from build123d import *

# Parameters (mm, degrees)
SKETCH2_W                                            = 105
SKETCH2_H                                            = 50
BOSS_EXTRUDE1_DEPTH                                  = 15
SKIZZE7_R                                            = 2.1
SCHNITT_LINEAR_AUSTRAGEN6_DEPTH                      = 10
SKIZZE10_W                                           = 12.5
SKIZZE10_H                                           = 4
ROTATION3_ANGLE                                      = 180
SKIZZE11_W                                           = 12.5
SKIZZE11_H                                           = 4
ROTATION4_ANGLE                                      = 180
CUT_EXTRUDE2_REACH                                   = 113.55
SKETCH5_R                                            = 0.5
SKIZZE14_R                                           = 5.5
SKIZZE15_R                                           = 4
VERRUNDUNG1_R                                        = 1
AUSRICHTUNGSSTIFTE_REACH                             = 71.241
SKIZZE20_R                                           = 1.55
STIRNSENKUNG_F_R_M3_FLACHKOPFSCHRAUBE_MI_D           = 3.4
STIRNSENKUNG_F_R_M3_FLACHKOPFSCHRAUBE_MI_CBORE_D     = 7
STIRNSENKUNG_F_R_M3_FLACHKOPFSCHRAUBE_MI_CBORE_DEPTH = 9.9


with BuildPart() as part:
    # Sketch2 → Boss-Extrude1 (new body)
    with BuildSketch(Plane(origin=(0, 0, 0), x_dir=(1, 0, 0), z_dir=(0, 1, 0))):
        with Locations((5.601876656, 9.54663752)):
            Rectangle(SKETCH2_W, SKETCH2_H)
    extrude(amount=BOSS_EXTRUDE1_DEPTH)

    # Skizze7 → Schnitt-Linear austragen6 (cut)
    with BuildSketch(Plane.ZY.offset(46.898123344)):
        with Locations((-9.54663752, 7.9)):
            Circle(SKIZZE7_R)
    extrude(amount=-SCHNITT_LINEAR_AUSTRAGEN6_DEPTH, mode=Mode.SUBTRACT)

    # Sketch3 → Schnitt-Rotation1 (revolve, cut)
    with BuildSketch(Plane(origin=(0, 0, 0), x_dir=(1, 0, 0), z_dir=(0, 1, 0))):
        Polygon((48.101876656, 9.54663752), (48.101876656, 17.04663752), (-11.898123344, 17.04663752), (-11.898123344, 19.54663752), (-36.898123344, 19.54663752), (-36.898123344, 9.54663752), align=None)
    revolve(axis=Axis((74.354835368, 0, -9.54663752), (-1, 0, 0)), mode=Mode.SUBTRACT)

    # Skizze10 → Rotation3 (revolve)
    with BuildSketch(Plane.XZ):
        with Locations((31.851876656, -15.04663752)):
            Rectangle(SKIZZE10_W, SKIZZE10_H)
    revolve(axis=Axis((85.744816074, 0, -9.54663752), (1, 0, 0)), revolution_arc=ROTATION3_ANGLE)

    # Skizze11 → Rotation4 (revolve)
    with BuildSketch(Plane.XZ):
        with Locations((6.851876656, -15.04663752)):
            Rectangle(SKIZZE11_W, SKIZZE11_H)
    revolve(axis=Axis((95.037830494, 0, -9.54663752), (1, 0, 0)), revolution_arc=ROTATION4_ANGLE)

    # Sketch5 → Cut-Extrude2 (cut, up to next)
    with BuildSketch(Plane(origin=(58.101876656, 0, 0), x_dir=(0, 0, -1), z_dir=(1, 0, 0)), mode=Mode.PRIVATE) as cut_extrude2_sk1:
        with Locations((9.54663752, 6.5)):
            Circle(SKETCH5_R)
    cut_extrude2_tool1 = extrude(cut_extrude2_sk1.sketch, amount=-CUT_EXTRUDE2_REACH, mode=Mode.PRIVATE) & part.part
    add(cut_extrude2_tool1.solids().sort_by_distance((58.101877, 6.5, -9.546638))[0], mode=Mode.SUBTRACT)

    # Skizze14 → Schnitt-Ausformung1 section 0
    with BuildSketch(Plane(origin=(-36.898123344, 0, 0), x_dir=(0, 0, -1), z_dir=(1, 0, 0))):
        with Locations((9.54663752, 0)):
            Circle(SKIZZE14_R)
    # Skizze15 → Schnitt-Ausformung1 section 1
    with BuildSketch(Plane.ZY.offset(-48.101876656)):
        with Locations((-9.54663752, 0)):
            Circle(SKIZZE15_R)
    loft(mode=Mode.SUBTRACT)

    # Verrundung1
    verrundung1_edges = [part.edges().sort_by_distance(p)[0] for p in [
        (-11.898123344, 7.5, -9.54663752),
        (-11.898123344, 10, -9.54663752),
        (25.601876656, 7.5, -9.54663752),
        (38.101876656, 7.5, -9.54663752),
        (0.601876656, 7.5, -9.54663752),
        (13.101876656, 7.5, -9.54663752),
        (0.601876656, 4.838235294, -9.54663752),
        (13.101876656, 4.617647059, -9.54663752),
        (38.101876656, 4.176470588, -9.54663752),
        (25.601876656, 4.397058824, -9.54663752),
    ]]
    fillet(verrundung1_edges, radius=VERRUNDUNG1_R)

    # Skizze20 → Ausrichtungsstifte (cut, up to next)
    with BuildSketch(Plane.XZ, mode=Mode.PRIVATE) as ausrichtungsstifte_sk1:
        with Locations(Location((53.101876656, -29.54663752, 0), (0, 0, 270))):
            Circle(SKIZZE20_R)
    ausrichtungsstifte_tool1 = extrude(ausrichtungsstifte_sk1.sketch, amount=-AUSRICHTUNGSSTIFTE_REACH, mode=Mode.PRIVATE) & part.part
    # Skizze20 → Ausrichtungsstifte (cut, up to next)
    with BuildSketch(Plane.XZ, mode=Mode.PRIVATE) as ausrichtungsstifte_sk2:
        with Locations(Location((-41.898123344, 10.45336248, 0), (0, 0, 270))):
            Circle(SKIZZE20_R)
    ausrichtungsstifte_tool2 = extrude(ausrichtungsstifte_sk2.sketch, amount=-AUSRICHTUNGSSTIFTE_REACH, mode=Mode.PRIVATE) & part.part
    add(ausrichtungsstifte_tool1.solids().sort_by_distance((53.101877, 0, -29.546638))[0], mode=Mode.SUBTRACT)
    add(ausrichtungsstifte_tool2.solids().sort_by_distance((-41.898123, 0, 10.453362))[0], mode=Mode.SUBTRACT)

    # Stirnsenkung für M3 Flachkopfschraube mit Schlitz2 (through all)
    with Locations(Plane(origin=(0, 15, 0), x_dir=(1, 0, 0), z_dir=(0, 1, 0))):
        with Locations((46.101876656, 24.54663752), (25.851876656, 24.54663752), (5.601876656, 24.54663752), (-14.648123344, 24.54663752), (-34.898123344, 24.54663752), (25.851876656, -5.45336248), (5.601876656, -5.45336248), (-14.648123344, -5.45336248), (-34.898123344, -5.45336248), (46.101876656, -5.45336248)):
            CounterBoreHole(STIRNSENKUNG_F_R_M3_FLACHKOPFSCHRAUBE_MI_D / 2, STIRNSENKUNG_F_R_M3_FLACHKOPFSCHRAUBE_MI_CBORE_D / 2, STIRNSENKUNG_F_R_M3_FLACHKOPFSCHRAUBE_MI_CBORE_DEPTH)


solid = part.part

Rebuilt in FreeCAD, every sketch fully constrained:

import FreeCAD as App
import Part
import Sketcher
Q = App.Units.Quantity


def edges_at(feature, points):
    """Names of the edges that pass closest to the given points."""
    edges = feature.Shape.Edges
    near = lambda p: min(range(len(edges)), key=lambda i: edges[i].distToShape(Part.Vertex(*p))[0])
    return sorted({f"Edge{near(p) + 1}" for p in points})

doc = App.newDocument("Part")
body = doc.addObject("PartDesign::Body", "Body")

sketch1 = doc.addObject("Sketcher::SketchObject", "Sketch")
body.addObject(sketch1)
sketch1.AttachmentSupport = (doc.XZ_Plane, [""])
sketch1.MapMode = "FlatFace"
sketch1.addGeometry([
    Part.LineSegment(App.Vector(-47, -35, 0), App.Vector(-47, 15, 0)),
    Part.LineSegment(App.Vector(-47, 15, 0), App.Vector(58, 15, 0)),
    Part.LineSegment(App.Vector(58, 15, 0), App.Vector(58, -35, 0)),
    Part.LineSegment(App.Vector(58, -35, 0), App.Vector(-47, -35, 0)),
], False)
sketch1.addConstraint([
    Sketcher.Constraint("Coincident", 0, 2, 1, 1),
    Sketcher.Constraint("Coincident", 1, 2, 2, 1),
    Sketcher.Constraint("Coincident", 2, 2, 3, 1),
    Sketcher.Constraint("Coincident", 3, 2, 0, 1),
    Sketcher.Constraint("Vertical", 0),
    Sketcher.Constraint("Horizontal", 1),
    Sketcher.Constraint("Vertical", 2),
    Sketcher.Constraint("Horizontal", 3),
    Sketcher.Constraint("DistanceX", 1, 1, 1, 2, Q("105 mm")),
    Sketcher.Constraint("DistanceY", 0, 1, 0, 2, Q("50 mm")),
    Sketcher.Constraint("DistanceX", 0, 2, -1, 1, Q("46.898123 mm")),
    Sketcher.Constraint("DistanceY", -1, 1, 0, 2, Q("15.453362 mm")),
])
pad1 = doc.addObject("PartDesign::Pad", "Pad")
body.addObject(pad1)
pad1.Profile = sketch1
pad1.Length = 15
pad1.Reversed = True

sketch2 = doc.addObject("Sketcher::SketchObject", "Sketch001")
body.addObject(sketch2)
sketch2.AttachmentSupport = (doc.YZ_Plane, [""])
sketch2.MapMode = "FlatFace"
sketch2.AttachmentOffset = App.Placement(App.Vector(0, 0, -46.898123), App.Rotation())
sketch2.addGeometry(Part.Circle(App.Vector(7.9, -9.5, 0), App.Vector(0, 0, 1), 2.1), False)
sketch2.addConstraint([
    Sketcher.Constraint("Diameter", 0, Q("4.2 mm")),
    Sketcher.Constraint("DistanceX", -1, 1, 0, 3, Q("7.9 mm")),
    Sketcher.Constraint("DistanceY", 0, 3, -1, 1, Q("9.546638 mm")),
])
pocket1 = doc.addObject("PartDesign::Pocket", "Pocket")
body.addObject(pocket1)
pocket1.Profile = sketch2
pocket1.Length = 10
pocket1.Reversed = True

sketch3 = doc.addObject("Sketcher::SketchObject", "Sketch002")
body.addObject(sketch3)
sketch3.AttachmentSupport = (doc.XZ_Plane, [""])
sketch3.MapMode = "FlatFace"
sketch3.addGeometry([
    Part.LineSegment(App.Vector(48.1, -9.5, 0), App.Vector(48.1, -17, 0)),
    Part.LineSegment(App.Vector(48.1, -17, 0), App.Vector(-11.9, -17, 0)),
    Part.LineSegment(App.Vector(-11.9, -17, 0), App.Vector(-11.9, -19.5, 0)),
    Part.LineSegment(App.Vector(-11.9, -19.5, 0), App.Vector(-36.9, -19.5, 0)),
    Part.LineSegment(App.Vector(-36.9, -19.5, 0), App.Vector(-36.9, -9.5, 0)),
    Part.LineSegment(App.Vector(-36.9, -9.5, 0), App.Vector(48.1, -9.5, 0)),
], False)
sketch3.addGeometry(Part.LineSegment(App.Vector(48.1, -9.5, 0), App.Vector(-36.9, -9.5, 0)), True)
sketch3.addConstraint([
    Sketcher.Constraint("Coincident", 0, 2, 1, 1),
    Sketcher.Constraint("Coincident", 1, 2, 2, 1),
    Sketcher.Constraint("Coincident", 2, 2, 3, 1),
    Sketcher.Constraint("Coincident", 3, 2, 4, 1),
    Sketcher.Constraint("Coincident", 4, 2, 5, 1),
    Sketcher.Constraint("Coincident", 5, 2, 0, 1),
    Sketcher.Constraint("Vertical", 0),
    Sketcher.Constraint("Horizontal", 1),
    Sketcher.Constraint("Vertical", 2),
    Sketcher.Constraint("Horizontal", 3),
    Sketcher.Constraint("Vertical", 4),
    Sketcher.Constraint("Horizontal", 5),
    Sketcher.Constraint("Horizontal", 6),
    Sketcher.Constraint("Coincident", 6, 1, 5, 2),
    Sketcher.Constraint("Vertical", 3, 2, 6, 2),
    Sketcher.Constraint("DistanceX", 1, 2, 1, 1, Q("60 mm")),
    Sketcher.Constraint("DistanceX", 3, 2, 3, 1, Q("25 mm")),
    Sketcher.Constraint("DistanceY", 4, 1, 4, 2, Q("10 mm")),
    Sketcher.Constraint("DistanceY", 0, 2, 0, 1, Q("7.5 mm")),
    Sketcher.Constraint("DistanceX", -1, 1, 0, 2, Q("48.101877 mm")),
    Sketcher.Constraint("DistanceY", 0, 2, -1, 1, Q("17.046638 mm")),
])
groove = doc.addObject("PartDesign::Groove", "Groove")
body.addObject(groove)
groove.Profile = sketch3
groove.ReferenceAxis = (sketch3, ["Axis0"])
groove.Angle = 360

sketch4 = doc.addObject("Sketcher::SketchObject", "Sketch003")
body.addObject(sketch4)
sketch4.AttachmentSupport = (doc.XZ_Plane, [""])
sketch4.MapMode = "FlatFace"
sketch4.addGeometry([
    Part.LineSegment(App.Vector(25.6, -13, 0), App.Vector(25.6, -17, 0)),
    Part.LineSegment(App.Vector(25.6, -17, 0), App.Vector(38.1, -17, 0)),
    Part.LineSegment(App.Vector(38.1, -17, 0), App.Vector(38.1, -13, 0)),
    Part.LineSegment(App.Vector(38.1, -13, 0), App.Vector(25.6, -13, 0)),
], False)
sketch4.addGeometry(Part.LineSegment(App.Vector(25.6, -9.5, 0), App.Vector(38.1, -9.5, 0)), True)
sketch4.addConstraint([
    Sketcher.Constraint("Coincident", 0, 2, 1, 1),
    Sketcher.Constraint("Coincident", 1, 2, 2, 1),
    Sketcher.Constraint("Coincident", 2, 2, 3, 1),
    Sketcher.Constraint("Coincident", 3, 2, 0, 1),
    Sketcher.Constraint("Vertical", 0),
    Sketcher.Constraint("Horizontal", 1),
    Sketcher.Constraint("Vertical", 2),
    Sketcher.Constraint("Horizontal", 3),
    Sketcher.Constraint("Horizontal", 4),
    Sketcher.Constraint("Vertical", 3, 2, 4, 1),
    Sketcher.Constraint("Vertical", 2, 2, 4, 2),
    Sketcher.Constraint("DistanceY", 0, 2, 0, 1, Q("4 mm")),
    Sketcher.Constraint("DistanceX", 1, 1, 1, 2, Q("12.5 mm")),
    Sketcher.Constraint("DistanceY", 3, 2, 4, 1, Q("3.5 mm")),
    Sketcher.Constraint("DistanceX", -1, 1, 0, 2, Q("25.601877 mm")),
    Sketcher.Constraint("DistanceY", 0, 2, -1, 1, Q("17.046638 mm")),
])
revolution = doc.addObject("PartDesign::Revolution", "Revolution")
body.addObject(revolution)
revolution.Profile = sketch4
revolution.ReferenceAxis = (sketch4, ["Axis0"])
revolution.Angle = 180

sketch5 = doc.addObject("Sketcher::SketchObject", "Sketch004")
body.addObject(sketch5)
sketch5.AttachmentSupport = (doc.XZ_Plane, [""])
sketch5.MapMode = "FlatFace"
sketch5.addGeometry([
    Part.LineSegment(App.Vector(0.6, -13, 0), App.Vector(0.6, -17, 0)),
    Part.LineSegment(App.Vector(0.6, -17, 0), App.Vector(13.1, -17, 0)),
    Part.LineSegment(App.Vector(13.1, -17, 0), App.Vector(13.1, -13, 0)),
    Part.LineSegment(App.Vector(13.1, -13, 0), App.Vector(0.6, -13, 0)),
], False)
sketch5.addGeometry(Part.LineSegment(App.Vector(0.6, -9.5, 0), App.Vector(13.1, -9.5, 0)), True)
sketch5.addConstraint([
    Sketcher.Constraint("Coincident", 0, 2, 1, 1),
    Sketcher.Constraint("Coincident", 1, 2, 2, 1),
    Sketcher.Constraint("Coincident", 2, 2, 3, 1),
    Sketcher.Constraint("Coincident", 3, 2, 0, 1),
    Sketcher.Constraint("Vertical", 0),
    Sketcher.Constraint("Horizontal", 1),
    Sketcher.Constraint("Vertical", 2),
    Sketcher.Constraint("Horizontal", 3),
    Sketcher.Constraint("Horizontal", 4),
    Sketcher.Constraint("Vertical", 3, 2, 4, 1),
    Sketcher.Constraint("Vertical", 2, 2, 4, 2),
    Sketcher.Constraint("DistanceY", 0, 2, 0, 1, Q("4 mm")),
    Sketcher.Constraint("DistanceX", 1, 1, 1, 2, Q("12.5 mm")),
    Sketcher.Constraint("DistanceY", 3, 2, 4, 1, Q("3.5 mm")),
    Sketcher.Constraint("DistanceX", -1, 1, 0, 2, Q("0.601877 mm")),
    Sketcher.Constraint("DistanceY", 0, 2, -1, 1, Q("17.046638 mm")),
])
revolution2 = doc.addObject("PartDesign::Revolution", "Revolution001")
body.addObject(revolution2)
revolution2.Profile = sketch5
revolution2.ReferenceAxis = (sketch5, ["Axis0"])
revolution2.Angle = 180

sketch6 = doc.addObject("Sketcher::SketchObject", "Sketch005")
body.addObject(sketch6)
sketch6.AttachmentSupport = (doc.YZ_Plane, [""])
sketch6.MapMode = "FlatFace"
sketch6.AttachmentOffset = App.Placement(App.Vector(0, 0, 58.101877), App.Rotation())
sketch6.addGeometry(Part.Circle(App.Vector(6.5, -9.5, 0), App.Vector(0, 0, 1), 0.5), False)
sketch6.addConstraint([
    Sketcher.Constraint("Diameter", 0, Q("1 mm")),
    Sketcher.Constraint("DistanceX", -1, 1, 0, 3, Q("6.5 mm")),
    Sketcher.Constraint("DistanceY", 0, 3, -1, 1, Q("9.546638 mm")),
])
pocket2 = doc.addObject("PartDesign::Pocket", "Pocket001")
body.addObject(pocket2)
pocket2.Profile = sketch6
pocket2.Type = "UpToFirst"

sketch7 = doc.addObject("Sketcher::SketchObject", "Sketch006")
body.addObject(sketch7)
sketch7.AttachmentSupport = (doc.YZ_Plane, [""])
sketch7.MapMode = "FlatFace"
sketch7.AttachmentOffset = App.Placement(App.Vector(0, 0, -36.898123), App.Rotation())
sketch7.addGeometry(Part.Circle(App.Vector(0, -10, 0), App.Vector(0, 0, 1), 6), False)
sketch7.addConstraint([
    Sketcher.Constraint("PointOnObject", 0, 3, -2),
    Sketcher.Constraint("Diameter", 0, Q("11 mm")),
    Sketcher.Constraint("DistanceY", 0, 3, -1, 1, Q("9.546638 mm")),
])

sketch8 = doc.addObject("Sketcher::SketchObject", "Sketch007")
body.addObject(sketch8)
sketch8.AttachmentSupport = (doc.YZ_Plane, [""])
sketch8.MapMode = "FlatFace"
sketch8.AttachmentOffset = App.Placement(App.Vector(0, 0, 48.101877), App.Rotation())
sketch8.addGeometry(Part.Circle(App.Vector(0, -9.5, 0), App.Vector(0, 0, 1), 4), False)
sketch8.addConstraint([
    Sketcher.Constraint("PointOnObject", 0, 3, -2),
    Sketcher.Constraint("Diameter", 0, Q("8 mm")),
    Sketcher.Constraint("DistanceY", 0, 3, -1, 1, Q("9.546638 mm")),
])

subtractiveloft = doc.addObject("PartDesign::SubtractiveLoft", "SubtractiveLoft")
body.addObject(subtractiveloft)
subtractiveloft.Profile = sketch7
subtractiveloft.Sections = [sketch8]
doc.recompute()

fillet = doc.addObject("PartDesign::Fillet", "Fillet")
body.addObject(fillet)
fillet.Base = (subtractiveloft, edges_at(subtractiveloft, [
    (-11.898, 7.5, -9.547),
    (-11.898, 10, -9.547),
    (25.602, 7.5, -9.547),
    (38.102, 7.5, -9.547),
    (0.602, 7.5, -9.547),
    (13.102, 7.5, -9.547),
    (0.602, 4.838, -9.547),
    (13.102, 4.618, -9.547),
    (38.102, 4.176, -9.547),
    (25.602, 4.397, -9.547),
]))
fillet.Radius = 1

sketch9 = doc.addObject("Sketcher::SketchObject", "Sketch008")
body.addObject(sketch9)
sketch9.AttachmentSupport = (doc.XZ_Plane, [""])
sketch9.MapMode = "FlatFace"
sketch9.addGeometry(Part.Circle(App.Vector(53.1, -29.5, 0), App.Vector(0, 0, 1), 1.6), False)
sketch9.addConstraint([
    Sketcher.Constraint("Diameter", 0, Q("3.1 mm")),
    Sketcher.Constraint("DistanceX", -1, 1, 0, 3, Q("53.101877 mm")),
    Sketcher.Constraint("DistanceY", 0, 3, -1, 1, Q("29.546638 mm")),
])
pocket3 = doc.addObject("PartDesign::Pocket", "Pocket002")
body.addObject(pocket3)
pocket3.Profile = sketch9
pocket3.Type = "UpToFirst"

sketch10 = doc.addObject("Sketcher::SketchObject", "Sketch009")
body.addObject(sketch10)
sketch10.AttachmentSupport = (doc.XZ_Plane, [""])
sketch10.MapMode = "FlatFace"
sketch10.addGeometry(Part.Circle(App.Vector(-41.9, 10.5, 0), App.Vector(0, 0, 1), 1.6), False)
sketch10.addConstraint([
    Sketcher.Constraint("Diameter", 0, Q("3.1 mm")),
    Sketcher.Constraint("DistanceX", 0, 3, -1, 1, Q("41.898123 mm")),
    Sketcher.Constraint("DistanceY", -1, 1, 0, 3, Q("10.453362 mm")),
])
pocket4 = doc.addObject("PartDesign::Pocket", "Pocket003")
body.addObject(pocket4)
pocket4.Profile = sketch10
pocket4.Type = "UpToFirst"

sketch11 = doc.addObject("Sketcher::SketchObject", "Sketch010")
body.addObject(sketch11)
sketch11.AttachmentSupport = (doc.XZ_Plane, [""])
sketch11.MapMode = "FlatFace"
sketch11.AttachmentOffset = App.Placement(App.Vector(0, 0, -15), App.Rotation())
sketch11.addGeometry([
    Part.Circle(App.Vector(46.1, -24.5, 0), App.Vector(0, 0, 1), 1.7),
    Part.Circle(App.Vector(25.9, -24.5, 0), App.Vector(0, 0, 1), 1.7),
    Part.Circle(App.Vector(5.6, -24.5, 0), App.Vector(0, 0, 1), 1.7),
    Part.Circle(App.Vector(-14.6, -24.5, 0), App.Vector(0, 0, 1), 1.7),
    Part.Circle(App.Vector(-34.9, -24.5, 0), App.Vector(0, 0, 1), 1.7),
    Part.Circle(App.Vector(25.9, 5.5, 0), App.Vector(0, 0, 1), 1.7),
    Part.Circle(App.Vector(5.6, 5.5, 0), App.Vector(0, 0, 1), 1.7),
    Part.Circle(App.Vector(-14.6, 5.5, 0), App.Vector(0, 0, 1), 1.7),
    Part.Circle(App.Vector(-34.9, 5.5, 0), App.Vector(0, 0, 1), 1.7),
    Part.Circle(App.Vector(46.1, 5.5, 0), App.Vector(0, 0, 1), 1.7),
], False)
sketch11.addConstraint([
    Sketcher.Constraint("Equal", 0, 1),
    Sketcher.Constraint("Equal", 1, 2),
    Sketcher.Constraint("Equal", 2, 3),
    Sketcher.Constraint("Equal", 3, 4),
    Sketcher.Constraint("Equal", 4, 5),
    Sketcher.Constraint("Equal", 5, 6),
    Sketcher.Constraint("Equal", 6, 7),
    Sketcher.Constraint("Equal", 7, 8),
    Sketcher.Constraint("Equal", 8, 9),
    Sketcher.Constraint("Horizontal", 0, 3, 1, 3),
    Sketcher.Constraint("Horizontal", 1, 3, 2, 3),
    Sketcher.Constraint("Horizontal", 2, 3, 3, 3),
    Sketcher.Constraint("Horizontal", 3, 3, 4, 3),
    Sketcher.Constraint("Horizontal", 5, 3, 6, 3),
    Sketcher.Constraint("Horizontal", 6, 3, 7, 3),
    Sketcher.Constraint("Horizontal", 7, 3, 8, 3),
    Sketcher.Constraint("Horizontal", 8, 3, 9, 3),
    Sketcher.Constraint("Vertical", 1, 3, 5, 3),
    Sketcher.Constraint("Vertical", 2, 3, 6, 3),
    Sketcher.Constraint("Vertical", 3, 3, 7, 3),
    Sketcher.Constraint("Vertical", 4, 3, 8, 3),
    Sketcher.Constraint("Vertical", 0, 3, 9, 3),
    Sketcher.Constraint("Diameter", 0, Q("3.4 mm")),
    Sketcher.Constraint("DistanceX", 4, 3, 0, 3, Q("81 mm")),
    Sketcher.Constraint("DistanceY", 1, 3, 5, 3, Q("30 mm")),
    Sketcher.Constraint("DistanceX", 2, 3, 0, 3, Q("40.5 mm")),
    Sketcher.Constraint("DistanceX", 3, 3, 1, 3, Q("40.5 mm")),
    Sketcher.Constraint("DistanceX", 1, 3, 0, 3, Q("20.25 mm")),
    Sketcher.Constraint("DistanceX", -1, 1, 0, 3, Q("46.101877 mm")),
    Sketcher.Constraint("DistanceY", 0, 3, -1, 1, Q("24.546638 mm")),
])
doc.recompute()
hole = doc.addObject("PartDesign::Hole", "Hole")
body.addObject(hole)
hole.Profile = sketch11
hole.ThreadType = "None"
hole.Diameter = 3.4
hole.DepthType = "ThroughAll"
hole.HoleCutType = "Counterbore"
hole.HoleCutDiameter = 7
hole.HoleCutDepth = 9.9
hole.Reversed = True

doc.recompute()
